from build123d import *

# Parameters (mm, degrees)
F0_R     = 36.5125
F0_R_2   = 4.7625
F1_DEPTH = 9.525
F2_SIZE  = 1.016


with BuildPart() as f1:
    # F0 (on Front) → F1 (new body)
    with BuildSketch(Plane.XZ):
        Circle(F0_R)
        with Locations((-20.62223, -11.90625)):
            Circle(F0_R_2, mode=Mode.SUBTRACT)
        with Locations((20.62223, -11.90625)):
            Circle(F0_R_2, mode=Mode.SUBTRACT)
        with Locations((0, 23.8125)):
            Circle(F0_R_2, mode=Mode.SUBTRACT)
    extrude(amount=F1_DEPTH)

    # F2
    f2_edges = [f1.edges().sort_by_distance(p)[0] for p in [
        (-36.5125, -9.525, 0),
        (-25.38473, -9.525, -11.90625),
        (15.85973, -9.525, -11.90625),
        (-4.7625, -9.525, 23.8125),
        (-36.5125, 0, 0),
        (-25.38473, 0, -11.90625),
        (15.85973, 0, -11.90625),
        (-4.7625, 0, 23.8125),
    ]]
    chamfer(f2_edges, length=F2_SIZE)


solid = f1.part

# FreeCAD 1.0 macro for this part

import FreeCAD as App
import Part
import Sketcher
Q = App.Units.Quantity


def edges_at(feature, points):
    """Names of the edges that pass closest to the given points."""
    edges = feature.Shape.Edges
    near = lambda p: min(range(len(edges)), key=lambda i: edges[i].distToShape(Part.Vertex(*p))[0])
    return sorted({f"Edge{near(p) + 1}" for p in points})

doc = App.newDocument("Part")
body = doc.addObject("PartDesign::Body", "Body")

# Sketch on XZ plane
sketch1 = body.newObject("Sketcher::SketchObject", "Sketch")
sketch1.AttachmentSupport = (doc.getObject("XZ_Plane"), [""])
sketch1.MapMode = "FlatFace"
sketch1.addGeometry(Part.Circle(App.Vector(0, 0, 0), App.Vector(0, 0, 1), 36.5), False)
sketch1.addGeometry(Part.Circle(App.Vector(-20.6, -11.9, 0), App.Vector(0, 0, 1), 4.8), False)
sketch1.addGeometry(Part.Circle(App.Vector(20.6, -11.9, 0), App.Vector(0, 0, 1), 4.8), False)
sketch1.addGeometry(Part.Circle(App.Vector(0, 23.8, 0), App.Vector(0, 0, 1), 4.8), False)
sketch1.addConstraint(Sketcher.Constraint("Coincident", 0, 3, -1, 1))
sketch1.addConstraint(Sketcher.Constraint("Equal", 1, 2))
sketch1.addConstraint(Sketcher.Constraint("Equal", 2, 3))
sketch1.addConstraint(Sketcher.Constraint("Symmetric", 1, 3, 2, 3, -2))
sketch1.addConstraint(Sketcher.Constraint("PointOnObject", 3, 3, -2))
sketch1.addConstraint(Sketcher.Constraint("Diameter", 0, Q("2.875 in")))
sketch1.addConstraint(Sketcher.Constraint("Diameter", 1, Q("0.375 in")))
sketch1.addConstraint(Sketcher.Constraint("DistanceY", 1, 3, -1, 1, Q("0.46875 in")))
sketch1.addConstraint(Sketcher.Constraint("DistanceY", -1, 1, 3, 3, Q("0.9375 in")))
sketch1.addConstraint(Sketcher.Constraint("DistanceX", 1, 3, -1, 1, Q("20.62223 mm")))
pad1 = body.newObject("PartDesign::Pad", "Pad")
pad1.Profile = sketch1
pad1.Length = Q("0.375 in")
doc.recompute()

chamfer = body.newObject("PartDesign::Chamfer", "Chamfer")
chamfer.Base = (pad1, edges_at(pad1, [
    (-36.513, -9.525, 0),
    (-25.385, -9.525, -11.906),
    (15.86, -9.525, -11.906),
    (-4.763, -9.525, 23.812),
    (-36.513, 0, 0),
    (-25.385, 0, -11.906),
    (15.86, 0, -11.906),
    (-4.763, 0, 23.812),
]))
chamfer.Size = Q("0.04 in")

doc.recompute()
